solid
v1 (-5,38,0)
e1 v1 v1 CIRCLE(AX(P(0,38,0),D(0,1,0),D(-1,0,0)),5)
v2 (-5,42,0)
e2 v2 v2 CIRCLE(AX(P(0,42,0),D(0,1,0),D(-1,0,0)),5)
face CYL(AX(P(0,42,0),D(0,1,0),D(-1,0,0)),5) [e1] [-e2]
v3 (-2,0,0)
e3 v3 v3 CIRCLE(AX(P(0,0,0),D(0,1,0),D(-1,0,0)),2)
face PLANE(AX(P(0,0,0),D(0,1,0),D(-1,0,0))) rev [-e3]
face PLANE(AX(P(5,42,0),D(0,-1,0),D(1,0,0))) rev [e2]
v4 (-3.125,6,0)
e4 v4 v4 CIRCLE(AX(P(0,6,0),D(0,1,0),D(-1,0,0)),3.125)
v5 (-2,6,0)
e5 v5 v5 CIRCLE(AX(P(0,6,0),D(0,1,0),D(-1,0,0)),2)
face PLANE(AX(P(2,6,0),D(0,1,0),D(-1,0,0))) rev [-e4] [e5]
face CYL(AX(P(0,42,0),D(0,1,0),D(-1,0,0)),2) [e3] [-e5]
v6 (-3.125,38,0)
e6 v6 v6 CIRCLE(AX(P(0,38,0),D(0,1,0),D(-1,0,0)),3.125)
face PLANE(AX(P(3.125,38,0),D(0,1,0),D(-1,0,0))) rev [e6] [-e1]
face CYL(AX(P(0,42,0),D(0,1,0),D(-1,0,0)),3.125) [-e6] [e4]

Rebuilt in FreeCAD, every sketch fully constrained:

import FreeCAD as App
import Part
import Sketcher

V = App.Vector
Q = App.Units.Quantity


def add_polygon(sketch, points):
    """Adds a closed chain of lines whose ends are joined by coincident constraints."""
    first, n = sketch.GeometryCount, len(points)
    for a, b in zip(points, points[1:] + points[:1]):
        sketch.addGeometry(Part.LineSegment(App.Vector(*a, 0), App.Vector(*b, 0)), False)
    for i in range(n):
        sketch.addConstraint(Sketcher.Constraint("Coincident", first + i, 2, first + (i + 1) % n, 1))

doc = App.newDocument("Part")
params = doc.addObject("Spreadsheet::Sheet", "Params")
for row, (alias, value) in enumerate([
    ("sketch1_width", "2 mm"),
    ("sketch1_width2", "5 mm"),
    ("sketch1_height", "6 mm"),
    ("sketch1_height2", "32 mm"),
    ("sketch1_height3", "4 mm"),
    ("revolution_angle", "360 deg"),
], start=1):
    params.set(f"A{row}", alias)
    params.set(f"B{row}", "=" + value)
    params.setAlias(f"B{row}", alias)

body = doc.addObject("PartDesign::Body", "Body")

sketch1 = body.newObject("Sketcher::SketchObject", "Sketch")
sketch1.AttachmentSupport = (doc.getObject("XY_Plane"), [""])
sketch1.MapMode = "FlatFace"
add_polygon(sketch1, [(0, 0), (2, 0), (2, 6), (3.1, 6), (3.1, 38), (5, 38), (5, 42), (0, 42)])
sketch1.addConstraint(Sketcher.Constraint("Horizontal", 0))
sketch1.addConstraint(Sketcher.Constraint("Vertical", 1))
sketch1.addConstraint(Sketcher.Constraint("Horizontal", 2))
sketch1.addConstraint(Sketcher.Constraint("Vertical", 3))
sketch1.addConstraint(Sketcher.Constraint("Horizontal", 4))
sketch1.addConstraint(Sketcher.Constraint("Vertical", 5))
sketch1.addConstraint(Sketcher.Constraint("Horizontal", 6))
sketch1.addConstraint(Sketcher.Constraint("Vertical", 7))
sketch1.addConstraint(Sketcher.Constraint("Coincident", 7, 2, -1, 1))
sketch1.addConstraint(Sketcher.Constraint("DistanceX", 0, 1, 0, 2, Q("2 mm")))
sketch1.addConstraint(Sketcher.Constraint("DistanceX", 6, 2, 6, 1, Q("5 mm")))
sketch1.addConstraint(Sketcher.Constraint("DistanceY", 1, 1, 1, 2, Q("6 mm")))
sketch1.addConstraint(Sketcher.Constraint("DistanceY", 3, 1, 3, 2, Q("32 mm")))
sketch1.addConstraint(Sketcher.Constraint("DistanceY", 5, 1, 5, 2, Q("4 mm")))
sketch1.addConstraint(Sketcher.Constraint("DistanceX", 2, 1, 2, 2, Q("1.125 mm")))
sketch1.setExpression("Constraints[17]", "Params.sketch1_width")
sketch1.setExpression("Constraints[18]", "Params.sketch1_width2")
sketch1.setExpression("Constraints[19]", "Params.sketch1_height")
sketch1.setExpression("Constraints[20]", "Params.sketch1_height2")
sketch1.setExpression("Constraints[21]", "Params.sketch1_height3")
revolution = body.newObject("PartDesign::Revolution", "Revolution")
revolution.Profile = sketch1
revolution.ReferenceAxis = (sketch1, ["V_Axis"])
revolution.setExpression("Angle", "Params.revolution_angle")

doc.recompute()
